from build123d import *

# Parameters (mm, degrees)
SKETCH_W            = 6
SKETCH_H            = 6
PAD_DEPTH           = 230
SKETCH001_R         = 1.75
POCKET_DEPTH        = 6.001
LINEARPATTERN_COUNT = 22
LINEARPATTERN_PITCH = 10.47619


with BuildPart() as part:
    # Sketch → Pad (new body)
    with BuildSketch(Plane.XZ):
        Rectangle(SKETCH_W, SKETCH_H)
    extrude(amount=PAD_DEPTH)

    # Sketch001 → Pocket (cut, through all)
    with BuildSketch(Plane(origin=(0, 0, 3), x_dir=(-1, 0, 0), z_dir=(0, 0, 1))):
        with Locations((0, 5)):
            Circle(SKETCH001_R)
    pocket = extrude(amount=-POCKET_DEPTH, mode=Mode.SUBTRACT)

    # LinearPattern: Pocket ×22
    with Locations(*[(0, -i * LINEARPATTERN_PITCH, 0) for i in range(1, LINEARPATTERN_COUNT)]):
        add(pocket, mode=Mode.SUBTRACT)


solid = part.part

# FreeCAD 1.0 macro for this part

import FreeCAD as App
import Part
import Sketcher
Q = App.Units.Quantity

doc = App.newDocument("Part")
body = doc.addObject("PartDesign::Body", "Body")

sketch1 = doc.addObject("Sketcher::SketchObject", "Sketch")
body.addObject(sketch1)
sketch1.AttachmentSupport = (doc.XZ_Plane, [""])
sketch1.MapMode = "FlatFace"
sketch1.addGeometry([
    Part.LineSegment(App.Vector(-3, 3, 0), App.Vector(-3, -3, 0)),
    Part.LineSegment(App.Vector(-3, -3, 0), App.Vector(3, -3, 0)),
    Part.LineSegment(App.Vector(3, -3, 0), App.Vector(3, 3, 0)),
    Part.LineSegment(App.Vector(3, 3, 0), App.Vector(-3, 3, 0)),
], False)
sketch1.addConstraint([
    Sketcher.Constraint("Coincident", 0, 2, 1, 1),
    Sketcher.Constraint("Coincident", 1, 2, 2, 1),
    Sketcher.Constraint("Coincident", 2, 2, 3, 1),
    Sketcher.Constraint("Coincident", 3, 2, 0, 1),
    Sketcher.Constraint("Vertical", 0),
    Sketcher.Constraint("Horizontal", 1),
    Sketcher.Constraint("Vertical", 2),
    Sketcher.Constraint("Horizontal", 3),
    Sketcher.Constraint("Symmetric", 0, 2, 2, 2, -1, 1),
    Sketcher.Constraint("Equal", 3, 0),
    Sketcher.Constraint("DistanceX", 1, 1, 1, 2, Q("6 mm")),
])
pad1 = doc.addObject("PartDesign::Pad", "Pad")
body.addObject(pad1)
pad1.Profile = sketch1
pad1.Length = 230

sketch2 = doc.addObject("Sketcher::SketchObject", "Sketch001")
body.addObject(sketch2)
sketch2.AttachmentSupport = (doc.XY_Plane, [""])
sketch2.MapMode = "FlatFace"
sketch2.AttachmentOffset = App.Placement(App.Vector(0, 0, 3), App.Rotation())
sketch2.addGeometry(Part.Circle(App.Vector(0, -5, 0), App.Vector(0, 0, 1), 1.8), False)
sketch2.addConstraint([
    Sketcher.Constraint("PointOnObject", 0, 3, -2),
    Sketcher.Constraint("Diameter", 0, Q("3.5 mm")),
    Sketcher.Constraint("DistanceY", 0, 3, -1, 1, Q("5 mm")),
])
pocket1 = doc.addObject("PartDesign::Pocket", "Pocket")
body.addObject(pocket1)
pocket1.Profile = sketch2
pocket1.Type = "ThroughAll"
doc.recompute()

linearpattern = doc.addObject("PartDesign::LinearPattern", "LinearPattern")
body.addObject(linearpattern)
linearpattern.Originals = [pocket1]
linearpattern.Direction = (doc.Y_Axis, [""])
linearpattern.Mode = "offset"
linearpattern.Offset = 10.47619
linearpattern.Occurrences = 22
linearpattern.Reversed = True
body.Tip = linearpattern

doc.recompute()
